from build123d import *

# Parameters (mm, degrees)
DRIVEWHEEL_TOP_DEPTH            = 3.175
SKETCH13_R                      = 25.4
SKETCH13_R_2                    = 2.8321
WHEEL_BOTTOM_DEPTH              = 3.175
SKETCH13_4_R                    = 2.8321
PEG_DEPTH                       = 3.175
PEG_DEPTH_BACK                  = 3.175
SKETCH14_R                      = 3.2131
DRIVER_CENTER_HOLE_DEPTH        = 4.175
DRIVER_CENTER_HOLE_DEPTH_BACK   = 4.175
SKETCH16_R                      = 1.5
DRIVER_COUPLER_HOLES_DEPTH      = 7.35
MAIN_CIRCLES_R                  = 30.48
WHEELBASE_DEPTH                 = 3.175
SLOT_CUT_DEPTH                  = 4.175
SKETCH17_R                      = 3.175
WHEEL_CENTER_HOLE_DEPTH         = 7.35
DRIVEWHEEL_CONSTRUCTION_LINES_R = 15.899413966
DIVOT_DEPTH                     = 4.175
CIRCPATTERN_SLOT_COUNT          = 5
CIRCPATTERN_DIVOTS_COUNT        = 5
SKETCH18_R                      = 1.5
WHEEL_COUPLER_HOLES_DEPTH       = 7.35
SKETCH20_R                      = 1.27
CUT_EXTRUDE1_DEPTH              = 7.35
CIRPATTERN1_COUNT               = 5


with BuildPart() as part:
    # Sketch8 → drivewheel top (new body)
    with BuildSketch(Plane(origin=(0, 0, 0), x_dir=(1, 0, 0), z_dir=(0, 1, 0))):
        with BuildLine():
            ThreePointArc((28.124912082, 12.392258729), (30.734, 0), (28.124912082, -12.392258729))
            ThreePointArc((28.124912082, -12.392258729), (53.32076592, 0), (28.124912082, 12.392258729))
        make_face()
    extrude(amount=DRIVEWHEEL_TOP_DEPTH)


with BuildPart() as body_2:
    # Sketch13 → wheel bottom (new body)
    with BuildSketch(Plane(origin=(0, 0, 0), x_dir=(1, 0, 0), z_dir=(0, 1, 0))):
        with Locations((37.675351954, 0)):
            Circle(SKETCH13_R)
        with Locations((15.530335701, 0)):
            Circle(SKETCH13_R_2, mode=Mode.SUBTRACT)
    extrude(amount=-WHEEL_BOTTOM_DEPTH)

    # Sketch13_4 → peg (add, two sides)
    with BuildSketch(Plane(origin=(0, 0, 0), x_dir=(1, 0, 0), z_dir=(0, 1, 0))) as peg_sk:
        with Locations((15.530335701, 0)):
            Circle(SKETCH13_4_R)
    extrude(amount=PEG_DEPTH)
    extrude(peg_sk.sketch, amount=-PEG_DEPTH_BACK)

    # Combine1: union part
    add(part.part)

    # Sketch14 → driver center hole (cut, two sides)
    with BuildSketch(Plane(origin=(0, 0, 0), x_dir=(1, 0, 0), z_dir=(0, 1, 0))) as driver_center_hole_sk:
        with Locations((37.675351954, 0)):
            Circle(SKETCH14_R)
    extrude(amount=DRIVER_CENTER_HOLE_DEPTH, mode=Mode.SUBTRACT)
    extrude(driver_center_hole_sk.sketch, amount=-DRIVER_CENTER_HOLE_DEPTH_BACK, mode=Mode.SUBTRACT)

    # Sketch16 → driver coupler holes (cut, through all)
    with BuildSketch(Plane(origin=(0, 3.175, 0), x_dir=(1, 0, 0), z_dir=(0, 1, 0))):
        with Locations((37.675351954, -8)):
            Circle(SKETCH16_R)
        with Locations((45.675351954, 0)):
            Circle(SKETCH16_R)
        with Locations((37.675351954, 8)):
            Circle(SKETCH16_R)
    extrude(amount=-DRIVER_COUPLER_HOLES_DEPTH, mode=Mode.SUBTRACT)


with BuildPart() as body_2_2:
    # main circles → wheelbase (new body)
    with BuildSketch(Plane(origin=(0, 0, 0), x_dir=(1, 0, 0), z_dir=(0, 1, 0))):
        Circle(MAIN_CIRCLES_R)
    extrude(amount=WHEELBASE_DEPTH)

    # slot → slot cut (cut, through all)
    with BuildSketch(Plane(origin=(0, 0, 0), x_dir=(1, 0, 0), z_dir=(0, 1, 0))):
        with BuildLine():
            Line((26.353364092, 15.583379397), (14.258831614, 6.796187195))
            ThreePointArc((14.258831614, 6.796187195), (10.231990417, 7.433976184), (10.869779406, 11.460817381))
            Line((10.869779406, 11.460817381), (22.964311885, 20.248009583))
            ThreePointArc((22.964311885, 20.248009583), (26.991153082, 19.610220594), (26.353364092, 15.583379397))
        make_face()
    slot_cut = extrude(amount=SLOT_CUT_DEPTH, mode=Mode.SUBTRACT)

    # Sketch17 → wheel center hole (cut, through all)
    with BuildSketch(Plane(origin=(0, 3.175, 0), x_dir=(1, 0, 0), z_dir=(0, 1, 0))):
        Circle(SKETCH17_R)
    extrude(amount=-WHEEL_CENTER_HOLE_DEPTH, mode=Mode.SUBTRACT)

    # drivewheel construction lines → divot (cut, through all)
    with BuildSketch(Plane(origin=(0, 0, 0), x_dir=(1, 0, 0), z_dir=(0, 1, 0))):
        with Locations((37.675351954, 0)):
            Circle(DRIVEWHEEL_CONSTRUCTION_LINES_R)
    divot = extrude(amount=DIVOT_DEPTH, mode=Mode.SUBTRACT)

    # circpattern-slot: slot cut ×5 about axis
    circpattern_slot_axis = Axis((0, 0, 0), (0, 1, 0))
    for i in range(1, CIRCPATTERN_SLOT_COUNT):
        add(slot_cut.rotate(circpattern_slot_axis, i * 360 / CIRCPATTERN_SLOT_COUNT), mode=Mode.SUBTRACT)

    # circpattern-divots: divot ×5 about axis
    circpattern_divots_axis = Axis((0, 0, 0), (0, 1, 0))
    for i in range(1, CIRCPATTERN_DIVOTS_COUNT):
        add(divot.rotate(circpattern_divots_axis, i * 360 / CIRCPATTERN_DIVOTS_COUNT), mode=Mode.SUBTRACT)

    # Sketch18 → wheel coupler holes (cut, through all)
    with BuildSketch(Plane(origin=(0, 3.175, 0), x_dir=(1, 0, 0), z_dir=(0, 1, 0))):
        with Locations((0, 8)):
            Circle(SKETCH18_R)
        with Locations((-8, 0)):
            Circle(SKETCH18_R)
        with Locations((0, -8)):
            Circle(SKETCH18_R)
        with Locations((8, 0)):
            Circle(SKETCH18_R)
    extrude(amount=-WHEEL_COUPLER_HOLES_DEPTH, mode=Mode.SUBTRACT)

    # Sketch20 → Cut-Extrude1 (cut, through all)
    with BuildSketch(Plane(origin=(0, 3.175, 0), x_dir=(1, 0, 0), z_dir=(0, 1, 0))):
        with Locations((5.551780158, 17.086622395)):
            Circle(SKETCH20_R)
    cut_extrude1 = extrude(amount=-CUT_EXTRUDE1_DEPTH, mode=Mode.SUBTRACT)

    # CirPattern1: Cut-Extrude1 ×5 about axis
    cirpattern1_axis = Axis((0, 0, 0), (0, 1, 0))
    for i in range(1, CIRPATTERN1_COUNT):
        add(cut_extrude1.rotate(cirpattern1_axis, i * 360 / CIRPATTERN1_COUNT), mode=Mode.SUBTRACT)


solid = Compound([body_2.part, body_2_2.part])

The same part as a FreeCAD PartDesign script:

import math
import FreeCAD as App
import Part
import Sketcher
Q = App.Units.Quantity

doc = App.newDocument("Part")
params = doc.addObject("Spreadsheet::Sheet", "Params")
for row, (alias, value) in enumerate([
    ("sketch1_radius", "1.21 in"),
    ("pad1_length", "0.125 in"),
    ("sketch2_diameter", "2 in"),
    ("sketch2_diameter2", "0.223 in"),
    ("pad2_length", "0.125 in"),
    ("sketch3_diameter", "0.223 in"),
    ("pad3_length", "0.125 in"),
    ("pad3_length2", "0.125 in"),
    ("sketch4_diameter", "0.253 in"),
    ("sketch6_diameter", "2.4 in"),
    ("pad4_length", "0.125 in"),
    ("sketch8_diameter", "0.25 in"),
    ("sketch11_diameter", "0.1 in"),
], start=1):
    params.set(f"A{row}", alias)
    params.set(f"B{row}", "=" + value)
    params.setAlias(f"B{row}", alias)

body = doc.addObject("PartDesign::Body", "Body")

# Sketch on XZ plane
sketch1 = body.newObject("Sketcher::SketchObject", "Sketch")
sketch1.AttachmentSupport = (doc.getObject("XZ_Plane"), [""])
sketch1.MapMode = "FlatFace"
sketch1.addGeometry(Part.ArcOfCircle(Part.Circle(App.Vector(0, 0, 0), App.Vector(0, 0, 1), 31), math.radians(-24), math.radians(24)), False)
sketch1.addGeometry(Part.ArcOfCircle(Part.Circle(App.Vector(38, 0, 0), App.Vector(0, 0, 1), 16), math.radians(-128), math.radians(128)), False)
sketch1.addConstraint(Sketcher.Constraint("Coincident", 0, 1, 1, 1))
sketch1.addConstraint(Sketcher.Constraint("Coincident", 1, 2, 0, 2))
sketch1.addConstraint(Sketcher.Constraint("Coincident", 0, 3, -1, 1))
sketch1.addConstraint(Sketcher.Constraint("PointOnObject", 1, 3, -1))
sketch1.addConstraint(Sketcher.Constraint("Radius", 0, Q("1.21 in")))
sketch1.addConstraint(Sketcher.Constraint("Radius", 1, Q("15.645414 mm")))
sketch1.addConstraint(Sketcher.Constraint("DistanceX", -1, 1, 1, 3, Q("37.675352 mm")))
sketch1.setExpression("Constraints[4]", "Params.sketch1_radius")
pad1 = body.newObject("PartDesign::Pad", "Pad")
pad1.Profile = sketch1
pad1.setExpression("Length", "Params.pad1_length")
pad1.Reversed = True
body2 = doc.addObject("PartDesign::Body", "Body001")

# Sketch on XZ plane
sketch2 = body2.newObject("Sketcher::SketchObject", "Sketch001")
sketch2.AttachmentSupport = (doc.getObject("XZ_Plane001"), [""])
sketch2.MapMode = "FlatFace"
sketch2.addGeometry(Part.Circle(App.Vector(37.7, 0, 0), App.Vector(0, 0, 1), 25.4), False)
sketch2.addGeometry(Part.Circle(App.Vector(15.5, 0, 0), App.Vector(0, 0, 1), 2.8), False)
sketch2.addConstraint(Sketcher.Constraint("PointOnObject", 0, 3, -1))
sketch2.addConstraint(Sketcher.Constraint("PointOnObject", 1, 3, -1))
sketch2.addConstraint(Sketcher.Constraint("Diameter", 0, Q("2 in")))
sketch2.addConstraint(Sketcher.Constraint("Diameter", 1, Q("0.223 in")))
sketch2.addConstraint(Sketcher.Constraint("DistanceX", -1, 1, 0, 3, Q("37.675352 mm")))
sketch2.addConstraint(Sketcher.Constraint("DistanceX", -1, 1, 1, 3, Q("15.530336 mm")))
sketch2.setExpression("Constraints[2]", "Params.sketch2_diameter")
sketch2.setExpression("Constraints[3]", "Params.sketch2_diameter2")
pad2 = body2.newObject("PartDesign::Pad", "Pad001")
pad2.Profile = sketch2
pad2.setExpression("Length", "Params.pad2_length")

# Sketch on XZ plane
sketch3 = body2.newObject("Sketcher::SketchObject", "Sketch002")
sketch3.AttachmentSupport = (doc.getObject("XZ_Plane001"), [""])
sketch3.MapMode = "FlatFace"
sketch3.addGeometry(Part.Circle(App.Vector(15.5, 0, 0), App.Vector(0, 0, 1), 2.8), False)
sketch3.addConstraint(Sketcher.Constraint("PointOnObject", 0, 3, -1))
sketch3.addConstraint(Sketcher.Constraint("Diameter", 0, Q("0.223 in")))
sketch3.addConstraint(Sketcher.Constraint("DistanceX", -1, 1, 0, 3, Q("15.530336 mm")))
sketch3.setExpression("Constraints[1]", "Params.sketch3_diameter")
pad3 = body2.newObject("PartDesign::Pad", "Pad002")
pad3.Profile = sketch3
pad3.Type = "TwoLengths"
pad3.setExpression("Length", "Params.pad3_length")
pad3.setExpression("Length2", "Params.pad3_length2")
pad3.Reversed = True
doc.recompute()

boolean = body2.newObject("PartDesign::Boolean", "Boolean")
boolean.Type = "Fuse"
boolean.addObjects([body])

# Sketch on XZ plane
sketch4 = body2.newObject("Sketcher::SketchObject", "Sketch003")
sketch4.AttachmentSupport = (doc.getObject("XZ_Plane001"), [""])
sketch4.MapMode = "FlatFace"
sketch4.addGeometry(Part.Circle(App.Vector(37.7, 0, 0), App.Vector(0, 0, 1), 3.2), False)
sketch4.addConstraint(Sketcher.Constraint("PointOnObject", 0, 3, -1))
sketch4.addConstraint(Sketcher.Constraint("Diameter", 0, Q("0.253 in")))
sketch4.addConstraint(Sketcher.Constraint("DistanceX", -1, 1, 0, 3, Q("37.675352 mm")))
sketch4.setExpression("Constraints[1]", "Params.sketch4_diameter")
pocket1 = body2.newObject("PartDesign::Pocket", "Pocket")
pocket1.Profile = sketch4
pocket1.Type = "ThroughAll"
pocket1.Midplane = True

# Sketch on XZ plane
sketch5 = body2.newObject("Sketcher::SketchObject", "Sketch004")
sketch5.AttachmentSupport = (doc.getObject("XZ_Plane001"), [""])
sketch5.MapMode = "FlatFace"
sketch5.AttachmentOffset = App.Placement(App.Vector(0, 0, -0.125 * 25.4), App.Rotation())
sketch5.addGeometry(Part.Circle(App.Vector(37.7, 8, 0), App.Vector(0, 0, 1), 1.5), False)
sketch5.addGeometry(Part.Circle(App.Vector(45.7, 0, 0), App.Vector(0, 0, 1), 1.5), False)
sketch5.addGeometry(Part.Circle(App.Vector(37.7, -8, 0), App.Vector(0, 0, 1), 1.5), False)
sketch5.addConstraint(Sketcher.Constraint("Equal", 0, 1))
sketch5.addConstraint(Sketcher.Constraint("Equal", 1, 2))
sketch5.addConstraint(Sketcher.Constraint("Symmetric", 0, 3, 2, 3, -1))
sketch5.addConstraint(Sketcher.Constraint("PointOnObject", 1, 3, -1))
sketch5.addConstraint(Sketcher.Constraint("Diameter", 0, Q("3 mm")))
sketch5.addConstraint(Sketcher.Constraint("DistanceY", -1, 1, 0, 3, Q("8 mm")))
sketch5.addConstraint(Sketcher.Constraint("DistanceX", 0, 3, 1, 3, Q("8 mm")))
sketch5.addConstraint(Sketcher.Constraint("DistanceX", -1, 1, 0, 3, Q("37.675352 mm")))
pocket2 = body2.newObject("PartDesign::Pocket", "Pocket001")
pocket2.Profile = sketch5
pocket2.Type = "ThroughAll"
pocket2.Reversed = True
body3 = doc.addObject("PartDesign::Body", "Body002")

# Sketch on XZ plane
sketch6 = body3.newObject("Sketcher::SketchObject", "Sketch005")
sketch6.AttachmentSupport = (doc.getObject("XZ_Plane002"), [""])
sketch6.MapMode = "FlatFace"
sketch6.addGeometry(Part.Circle(App.Vector(0, 0, 0), App.Vector(0, 0, 1), 30), False)
sketch6.addConstraint(Sketcher.Constraint("Coincident", 0, 3, -1, 1))
sketch6.addConstraint(Sketcher.Constraint("Diameter", 0, Q("2.4 in")))
sketch6.setExpression("Constraints[1]", "Params.sketch6_diameter")
pad4 = body3.newObject("PartDesign::Pad", "Pad003")
pad4.Profile = sketch6
pad4.setExpression("Length", "Params.pad4_length")
pad4.Reversed = True

# Sketch on XZ plane
sketch7 = body3.newObject("Sketcher::SketchObject", "Sketch006")
sketch7.AttachmentSupport = (doc.getObject("XZ_Plane002"), [""])
sketch7.MapMode = "FlatFace"
sketch7.addGeometry(Part.LineSegment(App.Vector(14.3, -6.8, 0), App.Vector(26.4, -15.6, 0)), False)
sketch7.addGeometry(Part.ArcOfCircle(Part.Circle(App.Vector(24.7, -17.9, 0), App.Vector(0, 0, 1), 2.9), math.radians(-126), math.radians(54)), False)
sketch7.addGeometry(Part.LineSegment(App.Vector(23, -20.2, 0), App.Vector(10.9, -11.5, 0)), False)
sketch7.addGeometry(Part.ArcOfCircle(Part.Circle(App.Vector(12.6, -9.1, 0), App.Vector(0, 0, 1), 2.9), math.radians(54), math.radians(234)), False)
sketch7.addConstraint(Sketcher.Constraint("Tangent", 0, 2, 1, 2))
sketch7.addConstraint(Sketcher.Constraint("Tangent", 1, 1, 2, 1))
sketch7.addConstraint(Sketcher.Constraint("Tangent", 2, 2, 3, 2))
sketch7.addConstraint(Sketcher.Constraint("Tangent", 3, 1, 0, 1))
sketch7.addConstraint(Sketcher.Constraint("Equal", 1, 3))
sketch7.addConstraint(Sketcher.Constraint("Angle", 0, Q("-36 deg")))
sketch7.addConstraint(Sketcher.Constraint("Radius", 1, Q("0.1135 in")))
sketch7.addConstraint(Sketcher.Constraint("DistanceY", 0, 2, -1, 1, Q("15.583379 mm")))
sketch7.addConstraint(Sketcher.Constraint("DistanceX", -1, 1, 1, 1, Q("22.964312 mm")))
sketch7.addConstraint(Sketcher.Constraint("DistanceX", -1, 1, 2, 2, Q("10.869779 mm")))
pocket3 = body3.newObject("PartDesign::Pocket", "Pocket002")
pocket3.Profile = sketch7
pocket3.Type = "ThroughAll"

# Sketch on XZ plane
sketch8 = body3.newObject("Sketcher::SketchObject", "Sketch007")
sketch8.AttachmentSupport = (doc.getObject("XZ_Plane002"), [""])
sketch8.MapMode = "FlatFace"
sketch8.AttachmentOffset = App.Placement(App.Vector(0, 0, -0.125 * 25.4), App.Rotation())
sketch8.addGeometry(Part.Circle(App.Vector(0, 0, 0), App.Vector(0, 0, 1), 3.2), False)
sketch8.addConstraint(Sketcher.Constraint("Coincident", 0, 3, -1, 1))
sketch8.addConstraint(Sketcher.Constraint("Diameter", 0, Q("0.25 in")))
sketch8.setExpression("Constraints[1]", "Params.sketch8_diameter")
pocket4 = body3.newObject("PartDesign::Pocket", "Pocket003")
pocket4.Profile = sketch8
pocket4.Type = "ThroughAll"
pocket4.Reversed = True

# Sketch on XZ plane
sketch9 = body3.newObject("Sketcher::SketchObject", "Sketch008")
sketch9.AttachmentSupport = (doc.getObject("XZ_Plane002"), [""])
sketch9.MapMode = "FlatFace"
sketch9.addGeometry(Part.Circle(App.Vector(38, 0, 0), App.Vector(0, 0, 1), 16), False)
sketch9.addConstraint(Sketcher.Constraint("PointOnObject", 0, 3, -1))
sketch9.addConstraint(Sketcher.Constraint("Diameter", 0, Q("31.798828 mm")))
sketch9.addConstraint(Sketcher.Constraint("DistanceX", -1, 1, 0, 3, Q("37.675352 mm")))
pocket5 = body3.newObject("PartDesign::Pocket", "Pocket004")
pocket5.Profile = sketch9
pocket5.Type = "ThroughAll"
doc.recompute()

polarpattern = body3.newObject("PartDesign::PolarPattern", "PolarPattern")
polarpattern.Originals = [pocket3]
polarpattern.Axis = (doc.getObject("Y_Axis002"), [""])
polarpattern.Angle = 360
polarpattern.Occurrences = 5
body3.Tip = polarpattern
doc.recompute()

polarpattern2 = body3.newObject("PartDesign::PolarPattern", "PolarPattern001")
polarpattern2.Originals = [pocket5]
polarpattern2.Axis = (doc.getObject("Y_Axis002"), [""])
polarpattern2.Angle = 360
polarpattern2.Occurrences = 5
body3.Tip = polarpattern2

# Sketch on XZ plane
sketch10 = body3.newObject("Sketcher::SketchObject", "Sketch009")
sketch10.AttachmentSupport = (doc.getObject("XZ_Plane002"), [""])
sketch10.MapMode = "FlatFace"
sketch10.AttachmentOffset = App.Placement(App.Vector(0, 0, -0.125 * 25.4), App.Rotation())
sketch10.addGeometry(Part.Circle(App.Vector(0, -8, 0), App.Vector(0, 0, 1), 1.5), False)
sketch10.addGeometry(Part.Circle(App.Vector(-8, 0, 0), App.Vector(0, 0, 1), 1.5), False)
sketch10.addGeometry(Part.Circle(App.Vector(0, 8, 0), App.Vector(0, 0, 1), 1.5), False)
sketch10.addGeometry(Part.Circle(App.Vector(8, 0, 0), App.Vector(0, 0, 1), 1.5), False)
sketch10.addConstraint(Sketcher.Constraint("Equal", 0, 1))
sketch10.addConstraint(Sketcher.Constraint("Equal", 1, 2))
sketch10.addConstraint(Sketcher.Constraint("Equal", 2, 3))
sketch10.addConstraint(Sketcher.Constraint("Symmetric", 0, 3, 2, 3, -1, 1))
sketch10.addConstraint(Sketcher.Constraint("Symmetric", 1, 3, 3, 3, -1, 1))
sketch10.addConstraint(Sketcher.Constraint("PointOnObject", 0, 3, -2))
sketch10.addConstraint(Sketcher.Constraint("PointOnObject", 1, 3, -1))
sketch10.addConstraint(Sketcher.Constraint("Diameter", 0, Q("3 mm")))
sketch10.addConstraint(Sketcher.Constraint("DistanceY", 0, 3, -1, 1, Q("8 mm")))
sketch10.addConstraint(Sketcher.Constraint("DistanceX", 1, 3, -1, 1, Q("8 mm")))
pocket6 = body3.newObject("PartDesign::Pocket", "Pocket005")
pocket6.Profile = sketch10
pocket6.Type = "ThroughAll"
pocket6.Reversed = True

# Sketch on XZ plane
sketch11 = body3.newObject("Sketcher::SketchObject", "Sketch010")
sketch11.AttachmentSupport = (doc.getObject("XZ_Plane002"), [""])
sketch11.MapMode = "FlatFace"
sketch11.AttachmentOffset = App.Placement(App.Vector(0, 0, -0.125 * 25.4), App.Rotation())
sketch11.addGeometry(Part.Circle(App.Vector(5.6, -17.1, 0), App.Vector(0, 0, 1), 1.3), False)
sketch11.addConstraint(Sketcher.Constraint("Diameter", 0, Q("0.1 in")))
sketch11.addConstraint(Sketcher.Constraint("DistanceX", -1, 1, 0, 3, Q("5.55178 mm")))
sketch11.addConstraint(Sketcher.Constraint("DistanceY", 0, 3, -1, 1, Q("17.086622 mm")))
sketch11.setExpression("Constraints[0]", "Params.sketch11_diameter")
pocket7 = body3.newObject("PartDesign::Pocket", "Pocket006")
pocket7.Profile = sketch11
pocket7.Type = "ThroughAll"
pocket7.Reversed = True
doc.recompute()

polarpattern3 = body3.newObject("PartDesign::PolarPattern", "PolarPattern002")
polarpattern3.Originals = [pocket7]
polarpattern3.Axis = (doc.getObject("Y_Axis002"), [""])
polarpattern3.Angle = 360
polarpattern3.Occurrences = 5
body3.Tip = polarpattern3

doc.recompute()
